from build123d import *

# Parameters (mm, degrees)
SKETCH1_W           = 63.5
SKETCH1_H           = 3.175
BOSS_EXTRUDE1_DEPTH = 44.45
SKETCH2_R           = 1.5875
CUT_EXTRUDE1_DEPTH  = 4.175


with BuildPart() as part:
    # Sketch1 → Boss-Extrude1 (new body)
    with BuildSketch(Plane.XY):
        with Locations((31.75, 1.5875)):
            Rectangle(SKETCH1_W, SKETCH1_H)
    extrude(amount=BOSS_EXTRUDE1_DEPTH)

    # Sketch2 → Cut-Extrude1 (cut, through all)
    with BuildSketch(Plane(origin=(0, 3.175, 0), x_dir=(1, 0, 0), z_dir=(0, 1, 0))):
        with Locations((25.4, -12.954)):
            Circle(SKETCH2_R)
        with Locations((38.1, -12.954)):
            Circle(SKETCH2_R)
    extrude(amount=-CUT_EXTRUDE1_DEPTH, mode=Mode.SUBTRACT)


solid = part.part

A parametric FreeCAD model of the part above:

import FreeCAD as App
import Part
import Sketcher
from FreeCAD import Vector
Q = App.Units.Quantity

doc = App.newDocument("Part")
body = doc.addObject("PartDesign::Body", "Body")

# Sketch on XY plane
sketch1 = doc.addObject("Sketcher::SketchObject", "Sketch")
body.addObject(sketch1)
sketch1.AttachmentSupport = (doc.XY_Plane, [""])
sketch1.MapMode = "FlatFace"
sketch1.addGeometry(Part.LineSegment(Vector(0, 3.2, 0), Vector(0, 0, 0)), False)
sketch1.addGeometry(Part.LineSegment(Vector(0, 0, 0), Vector(63.5, 0, 0)), False)
sketch1.addGeometry(Part.LineSegment(Vector(63.5, 0, 0), Vector(63.5, 3.2, 0)), False)
sketch1.addGeometry(Part.LineSegment(Vector(63.5, 3.2, 0), Vector(0, 3.2, 0)), False)
sketch1.addConstraint(Sketcher.Constraint("Coincident", 0, 2, 1, 1))
sketch1.addConstraint(Sketcher.Constraint("Coincident", 1, 2, 2, 1))
sketch1.addConstraint(Sketcher.Constraint("Coincident", 2, 2, 3, 1))
sketch1.addConstraint(Sketcher.Constraint("Coincident", 3, 2, 0, 1))
sketch1.addConstraint(Sketcher.Constraint("Vertical", 0))
sketch1.addConstraint(Sketcher.Constraint("Horizontal", 1))
sketch1.addConstraint(Sketcher.Constraint("Vertical", 2))
sketch1.addConstraint(Sketcher.Constraint("Horizontal", 3))
sketch1.addConstraint(Sketcher.Constraint("Coincident", 0, 2, -1, 1))
sketch1.addConstraint(Sketcher.Constraint("DistanceX", 1, 1, 1, 2, Q("2.5 in")))
sketch1.addConstraint(Sketcher.Constraint("DistanceY", 0, 2, 0, 1, Q("0.125 in")))
pad1 = doc.addObject("PartDesign::Pad", "Pad")
body.addObject(pad1)
pad1.Profile = sketch1
pad1.Length = Q("1.75 in")

# Sketch on XZ plane
sketch2 = doc.addObject("Sketcher::SketchObject", "Sketch001")
body.addObject(sketch2)
sketch2.AttachmentSupport = (doc.XZ_Plane, [""])
sketch2.MapMode = "FlatFace"
sketch2.AttachmentOffset = App.Placement(Vector(0, 0, -0.125 * 25.4), App.Rotation())
sketch2.addGeometry(Part.Circle(Vector(25.4, 13, 0), Vector(0, 0, 1), 1.6), False)
sketch2.addGeometry(Part.Circle(Vector(38.1, 13, 0), Vector(0, 0, 1), 1.6), False)
sketch2.addConstraint(Sketcher.Constraint("Equal", 0, 1))
sketch2.addConstraint(Sketcher.Constraint("Horizontal", 0, 3, 1, 3))
sketch2.addConstraint(Sketcher.Constraint("Diameter", 0, Q("0.125 in")))
sketch2.addConstraint(Sketcher.Constraint("DistanceX", -1, 1, 0, 3, Q("1 in")))
sketch2.addConstraint(Sketcher.Constraint("DistanceX", -1, 1, 1, 3, Q("1.5 in")))
sketch2.addConstraint(Sketcher.Constraint("DistanceY", -1, 1, 0, 3, Q("0.51 in")))
pocket1 = doc.addObject("PartDesign::Pocket", "Pocket")
body.addObject(pocket1)
pocket1.Profile = sketch2
pocket1.Type = "ThroughAll"
pocket1.Reversed = True

doc.recompute()
